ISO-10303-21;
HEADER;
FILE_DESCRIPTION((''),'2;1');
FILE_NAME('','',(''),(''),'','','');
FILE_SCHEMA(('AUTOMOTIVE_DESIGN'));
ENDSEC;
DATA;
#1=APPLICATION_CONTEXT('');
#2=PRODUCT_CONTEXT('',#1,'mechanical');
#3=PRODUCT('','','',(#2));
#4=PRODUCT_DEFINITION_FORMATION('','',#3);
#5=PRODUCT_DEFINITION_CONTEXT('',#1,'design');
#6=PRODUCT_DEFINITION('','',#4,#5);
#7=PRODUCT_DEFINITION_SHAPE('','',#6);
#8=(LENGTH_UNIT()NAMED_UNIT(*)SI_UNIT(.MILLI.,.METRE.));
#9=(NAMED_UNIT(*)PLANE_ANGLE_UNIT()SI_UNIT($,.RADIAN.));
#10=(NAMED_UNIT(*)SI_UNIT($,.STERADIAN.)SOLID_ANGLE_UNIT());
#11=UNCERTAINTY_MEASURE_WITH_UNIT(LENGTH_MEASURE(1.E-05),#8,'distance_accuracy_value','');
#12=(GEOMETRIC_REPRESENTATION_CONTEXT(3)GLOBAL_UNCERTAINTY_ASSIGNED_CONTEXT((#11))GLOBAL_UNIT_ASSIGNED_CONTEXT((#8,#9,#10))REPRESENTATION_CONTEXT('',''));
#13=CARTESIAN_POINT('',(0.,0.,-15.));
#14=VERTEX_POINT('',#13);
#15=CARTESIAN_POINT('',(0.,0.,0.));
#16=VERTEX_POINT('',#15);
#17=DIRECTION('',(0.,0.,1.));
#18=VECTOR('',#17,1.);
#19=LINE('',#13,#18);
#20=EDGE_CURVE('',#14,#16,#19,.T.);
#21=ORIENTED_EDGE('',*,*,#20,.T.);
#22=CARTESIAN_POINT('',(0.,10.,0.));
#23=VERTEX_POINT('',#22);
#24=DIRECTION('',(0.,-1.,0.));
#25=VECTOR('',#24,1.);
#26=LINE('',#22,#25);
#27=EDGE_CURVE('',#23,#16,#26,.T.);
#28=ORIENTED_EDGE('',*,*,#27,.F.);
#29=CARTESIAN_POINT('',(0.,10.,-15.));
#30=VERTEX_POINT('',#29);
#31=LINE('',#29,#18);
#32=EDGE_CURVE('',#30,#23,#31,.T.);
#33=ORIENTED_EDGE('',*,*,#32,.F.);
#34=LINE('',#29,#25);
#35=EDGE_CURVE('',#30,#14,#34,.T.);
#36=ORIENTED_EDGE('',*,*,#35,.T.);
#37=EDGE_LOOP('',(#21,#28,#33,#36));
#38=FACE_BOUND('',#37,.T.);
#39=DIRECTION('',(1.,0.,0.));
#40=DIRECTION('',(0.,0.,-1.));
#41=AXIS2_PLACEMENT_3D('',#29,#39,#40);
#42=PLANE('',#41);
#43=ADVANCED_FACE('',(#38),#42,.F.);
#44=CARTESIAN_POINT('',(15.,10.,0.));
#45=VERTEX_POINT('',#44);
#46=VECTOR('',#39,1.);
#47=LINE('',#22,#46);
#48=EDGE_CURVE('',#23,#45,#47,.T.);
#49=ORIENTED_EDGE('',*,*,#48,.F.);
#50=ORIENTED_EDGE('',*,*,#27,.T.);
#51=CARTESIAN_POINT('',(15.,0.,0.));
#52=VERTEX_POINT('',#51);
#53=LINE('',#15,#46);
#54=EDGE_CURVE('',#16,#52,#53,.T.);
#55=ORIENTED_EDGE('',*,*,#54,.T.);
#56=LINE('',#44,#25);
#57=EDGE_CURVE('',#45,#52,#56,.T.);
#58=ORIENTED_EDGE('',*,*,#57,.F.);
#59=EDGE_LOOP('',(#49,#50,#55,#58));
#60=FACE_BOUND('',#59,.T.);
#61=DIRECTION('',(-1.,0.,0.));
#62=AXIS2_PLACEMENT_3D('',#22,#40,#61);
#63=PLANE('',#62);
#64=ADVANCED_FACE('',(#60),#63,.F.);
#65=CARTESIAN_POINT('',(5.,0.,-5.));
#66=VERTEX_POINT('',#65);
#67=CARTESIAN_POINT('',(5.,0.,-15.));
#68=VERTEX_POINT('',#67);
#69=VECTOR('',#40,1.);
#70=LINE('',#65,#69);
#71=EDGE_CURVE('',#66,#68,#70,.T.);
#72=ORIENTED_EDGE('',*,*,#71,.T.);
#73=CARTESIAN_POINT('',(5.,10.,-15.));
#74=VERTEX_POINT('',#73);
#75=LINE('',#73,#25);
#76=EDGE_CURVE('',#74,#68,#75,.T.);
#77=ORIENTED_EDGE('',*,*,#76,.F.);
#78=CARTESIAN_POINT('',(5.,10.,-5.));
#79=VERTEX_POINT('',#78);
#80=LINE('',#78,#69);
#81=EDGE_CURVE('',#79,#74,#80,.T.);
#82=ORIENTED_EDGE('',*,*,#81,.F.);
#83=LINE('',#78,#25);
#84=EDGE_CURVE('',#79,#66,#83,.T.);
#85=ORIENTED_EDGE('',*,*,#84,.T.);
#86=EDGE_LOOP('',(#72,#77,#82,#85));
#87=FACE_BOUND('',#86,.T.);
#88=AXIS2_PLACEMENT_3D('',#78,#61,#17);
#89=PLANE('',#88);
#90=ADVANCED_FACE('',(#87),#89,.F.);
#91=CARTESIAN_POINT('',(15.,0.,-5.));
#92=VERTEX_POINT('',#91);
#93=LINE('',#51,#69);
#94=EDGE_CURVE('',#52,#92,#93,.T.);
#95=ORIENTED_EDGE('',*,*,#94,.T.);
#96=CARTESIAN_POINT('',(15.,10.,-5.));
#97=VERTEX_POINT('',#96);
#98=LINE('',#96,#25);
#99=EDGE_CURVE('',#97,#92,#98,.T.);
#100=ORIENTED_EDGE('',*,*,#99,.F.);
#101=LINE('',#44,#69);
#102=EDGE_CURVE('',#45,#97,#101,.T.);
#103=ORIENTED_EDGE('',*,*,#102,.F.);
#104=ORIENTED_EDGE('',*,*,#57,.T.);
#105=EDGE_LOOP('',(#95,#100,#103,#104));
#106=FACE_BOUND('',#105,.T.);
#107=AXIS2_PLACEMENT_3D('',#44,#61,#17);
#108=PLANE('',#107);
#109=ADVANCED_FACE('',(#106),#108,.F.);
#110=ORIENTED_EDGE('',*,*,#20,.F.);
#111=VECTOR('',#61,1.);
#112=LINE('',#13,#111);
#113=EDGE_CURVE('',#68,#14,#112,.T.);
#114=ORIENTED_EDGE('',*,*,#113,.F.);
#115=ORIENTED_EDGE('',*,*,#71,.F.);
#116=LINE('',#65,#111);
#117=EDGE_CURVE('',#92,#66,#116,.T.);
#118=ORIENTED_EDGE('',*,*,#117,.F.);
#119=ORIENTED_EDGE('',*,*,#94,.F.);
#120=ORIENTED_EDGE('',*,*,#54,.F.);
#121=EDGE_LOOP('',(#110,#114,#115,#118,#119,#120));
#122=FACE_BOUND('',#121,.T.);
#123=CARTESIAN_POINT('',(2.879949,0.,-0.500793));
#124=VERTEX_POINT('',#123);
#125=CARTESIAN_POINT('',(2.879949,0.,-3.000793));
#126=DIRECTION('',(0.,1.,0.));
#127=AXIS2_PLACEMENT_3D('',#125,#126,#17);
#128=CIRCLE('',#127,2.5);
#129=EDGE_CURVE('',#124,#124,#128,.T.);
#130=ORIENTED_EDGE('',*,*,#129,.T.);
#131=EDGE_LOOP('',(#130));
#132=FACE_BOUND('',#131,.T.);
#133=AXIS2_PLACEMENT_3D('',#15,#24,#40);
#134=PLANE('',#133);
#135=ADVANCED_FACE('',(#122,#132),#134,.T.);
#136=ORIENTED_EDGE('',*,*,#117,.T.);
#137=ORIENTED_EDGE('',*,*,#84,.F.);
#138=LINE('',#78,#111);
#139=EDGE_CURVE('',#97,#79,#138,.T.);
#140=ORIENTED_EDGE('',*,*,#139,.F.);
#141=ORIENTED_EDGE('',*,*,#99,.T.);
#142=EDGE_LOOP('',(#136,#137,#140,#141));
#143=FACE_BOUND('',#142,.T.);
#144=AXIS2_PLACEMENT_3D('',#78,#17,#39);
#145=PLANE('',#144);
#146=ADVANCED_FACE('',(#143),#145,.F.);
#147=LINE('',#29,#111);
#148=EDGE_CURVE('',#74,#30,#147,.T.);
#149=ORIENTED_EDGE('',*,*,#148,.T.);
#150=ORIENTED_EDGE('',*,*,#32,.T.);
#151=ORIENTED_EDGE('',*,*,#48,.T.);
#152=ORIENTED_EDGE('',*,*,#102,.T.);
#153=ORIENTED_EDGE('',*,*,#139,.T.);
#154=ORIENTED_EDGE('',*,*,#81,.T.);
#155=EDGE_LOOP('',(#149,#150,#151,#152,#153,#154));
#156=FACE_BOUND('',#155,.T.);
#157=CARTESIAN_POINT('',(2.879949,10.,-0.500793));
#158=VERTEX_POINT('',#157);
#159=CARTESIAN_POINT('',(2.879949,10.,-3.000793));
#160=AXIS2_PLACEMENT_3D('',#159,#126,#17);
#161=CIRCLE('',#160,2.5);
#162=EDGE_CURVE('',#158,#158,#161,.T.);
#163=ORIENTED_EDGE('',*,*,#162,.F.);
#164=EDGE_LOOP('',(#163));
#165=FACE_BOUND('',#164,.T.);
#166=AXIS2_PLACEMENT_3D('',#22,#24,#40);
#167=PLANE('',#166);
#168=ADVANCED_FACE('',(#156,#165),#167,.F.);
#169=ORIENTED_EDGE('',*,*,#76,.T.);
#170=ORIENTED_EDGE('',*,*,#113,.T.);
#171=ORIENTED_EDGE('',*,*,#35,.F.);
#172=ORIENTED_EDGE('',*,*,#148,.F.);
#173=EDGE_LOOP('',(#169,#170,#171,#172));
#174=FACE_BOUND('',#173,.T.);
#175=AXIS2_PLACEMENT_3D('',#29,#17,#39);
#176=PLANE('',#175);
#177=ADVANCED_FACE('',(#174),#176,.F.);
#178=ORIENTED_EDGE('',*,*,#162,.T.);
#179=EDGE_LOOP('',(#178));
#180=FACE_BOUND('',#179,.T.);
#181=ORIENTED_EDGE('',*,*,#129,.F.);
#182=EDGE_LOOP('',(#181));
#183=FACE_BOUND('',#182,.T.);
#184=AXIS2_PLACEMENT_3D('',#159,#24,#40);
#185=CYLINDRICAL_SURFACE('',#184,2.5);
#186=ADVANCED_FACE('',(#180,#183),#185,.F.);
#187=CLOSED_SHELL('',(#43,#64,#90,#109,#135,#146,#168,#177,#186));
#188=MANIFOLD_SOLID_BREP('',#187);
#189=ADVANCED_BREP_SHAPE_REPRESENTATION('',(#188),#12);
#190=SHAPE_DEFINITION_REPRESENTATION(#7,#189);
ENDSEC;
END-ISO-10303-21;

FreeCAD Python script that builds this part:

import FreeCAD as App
import Part
import Sketcher

V = App.Vector

doc = App.newDocument("Part")
body = doc.addObject("PartDesign::Body", "Body")

sketch1 = body.newObject("Sketcher::SketchObject", "Sketch")
sketch1.AttachmentSupport = (doc.getObject("XZ_Plane"), [""])
sketch1.MapMode = "FlatFace"
sketch1.addGeometry([
    Part.LineSegment(V(0, -15, 0), V(0, 0, 0)),
    Part.LineSegment(V(0, 0, 0), V(15, 0, 0)),
    Part.LineSegment(V(15, 0, 0), V(15, -5, 0)),
    Part.LineSegment(V(15, -5, 0), V(5, -5, 0)),
    Part.LineSegment(V(5, -5, 0), V(5, -15, 0)),
    Part.LineSegment(V(5, -15, 0), V(0, -15, 0)),
    Part.Circle(V(2.9, -3, 0), V(0, 0, 1), 2.5),
], False)
sketch1.addConstraint([
    Sketcher.Constraint("Coincident", 0, 2, 1, 1),
    Sketcher.Constraint("Coincident", 1, 2, 2, 1),
    Sketcher.Constraint("Coincident", 2, 2, 3, 1),
    Sketcher.Constraint("Coincident", 3, 2, 4, 1),
    Sketcher.Constraint("Coincident", 4, 2, 5, 1),
    Sketcher.Constraint("Coincident", 5, 2, 0, 1),
    Sketcher.Constraint("Vertical", 0),
    Sketcher.Constraint("Horizontal", 1),
    Sketcher.Constraint("Vertical", 2),
    Sketcher.Constraint("Horizontal", 3),
    Sketcher.Constraint("Vertical", 4),
    Sketcher.Constraint("Horizontal", 5),
    Sketcher.Constraint("Coincident", 0, 2, -1, 1),
    Sketcher.Constraint("Equal", 1, 0),
    Sketcher.Constraint("Equal", 5, 2),
    Sketcher.Constraint("Diameter", 6, 5.0),
    Sketcher.Constraint("DistanceX", 1, 1, 1, 2, 15.0),
    Sketcher.Constraint("DistanceX", 3, 2, 3, 1, 10.0),
    Sketcher.Constraint("DistanceX", -1, 1, 6, 3, 2.879949),
    Sketcher.Constraint("DistanceY", 6, 3, -1, 1, 3.000793),
])
pad1 = body.newObject("PartDesign::Pad", "Pad")
pad1.Profile = sketch1
pad1.Length = 10
pad1.Reversed = True

doc.recompute()
